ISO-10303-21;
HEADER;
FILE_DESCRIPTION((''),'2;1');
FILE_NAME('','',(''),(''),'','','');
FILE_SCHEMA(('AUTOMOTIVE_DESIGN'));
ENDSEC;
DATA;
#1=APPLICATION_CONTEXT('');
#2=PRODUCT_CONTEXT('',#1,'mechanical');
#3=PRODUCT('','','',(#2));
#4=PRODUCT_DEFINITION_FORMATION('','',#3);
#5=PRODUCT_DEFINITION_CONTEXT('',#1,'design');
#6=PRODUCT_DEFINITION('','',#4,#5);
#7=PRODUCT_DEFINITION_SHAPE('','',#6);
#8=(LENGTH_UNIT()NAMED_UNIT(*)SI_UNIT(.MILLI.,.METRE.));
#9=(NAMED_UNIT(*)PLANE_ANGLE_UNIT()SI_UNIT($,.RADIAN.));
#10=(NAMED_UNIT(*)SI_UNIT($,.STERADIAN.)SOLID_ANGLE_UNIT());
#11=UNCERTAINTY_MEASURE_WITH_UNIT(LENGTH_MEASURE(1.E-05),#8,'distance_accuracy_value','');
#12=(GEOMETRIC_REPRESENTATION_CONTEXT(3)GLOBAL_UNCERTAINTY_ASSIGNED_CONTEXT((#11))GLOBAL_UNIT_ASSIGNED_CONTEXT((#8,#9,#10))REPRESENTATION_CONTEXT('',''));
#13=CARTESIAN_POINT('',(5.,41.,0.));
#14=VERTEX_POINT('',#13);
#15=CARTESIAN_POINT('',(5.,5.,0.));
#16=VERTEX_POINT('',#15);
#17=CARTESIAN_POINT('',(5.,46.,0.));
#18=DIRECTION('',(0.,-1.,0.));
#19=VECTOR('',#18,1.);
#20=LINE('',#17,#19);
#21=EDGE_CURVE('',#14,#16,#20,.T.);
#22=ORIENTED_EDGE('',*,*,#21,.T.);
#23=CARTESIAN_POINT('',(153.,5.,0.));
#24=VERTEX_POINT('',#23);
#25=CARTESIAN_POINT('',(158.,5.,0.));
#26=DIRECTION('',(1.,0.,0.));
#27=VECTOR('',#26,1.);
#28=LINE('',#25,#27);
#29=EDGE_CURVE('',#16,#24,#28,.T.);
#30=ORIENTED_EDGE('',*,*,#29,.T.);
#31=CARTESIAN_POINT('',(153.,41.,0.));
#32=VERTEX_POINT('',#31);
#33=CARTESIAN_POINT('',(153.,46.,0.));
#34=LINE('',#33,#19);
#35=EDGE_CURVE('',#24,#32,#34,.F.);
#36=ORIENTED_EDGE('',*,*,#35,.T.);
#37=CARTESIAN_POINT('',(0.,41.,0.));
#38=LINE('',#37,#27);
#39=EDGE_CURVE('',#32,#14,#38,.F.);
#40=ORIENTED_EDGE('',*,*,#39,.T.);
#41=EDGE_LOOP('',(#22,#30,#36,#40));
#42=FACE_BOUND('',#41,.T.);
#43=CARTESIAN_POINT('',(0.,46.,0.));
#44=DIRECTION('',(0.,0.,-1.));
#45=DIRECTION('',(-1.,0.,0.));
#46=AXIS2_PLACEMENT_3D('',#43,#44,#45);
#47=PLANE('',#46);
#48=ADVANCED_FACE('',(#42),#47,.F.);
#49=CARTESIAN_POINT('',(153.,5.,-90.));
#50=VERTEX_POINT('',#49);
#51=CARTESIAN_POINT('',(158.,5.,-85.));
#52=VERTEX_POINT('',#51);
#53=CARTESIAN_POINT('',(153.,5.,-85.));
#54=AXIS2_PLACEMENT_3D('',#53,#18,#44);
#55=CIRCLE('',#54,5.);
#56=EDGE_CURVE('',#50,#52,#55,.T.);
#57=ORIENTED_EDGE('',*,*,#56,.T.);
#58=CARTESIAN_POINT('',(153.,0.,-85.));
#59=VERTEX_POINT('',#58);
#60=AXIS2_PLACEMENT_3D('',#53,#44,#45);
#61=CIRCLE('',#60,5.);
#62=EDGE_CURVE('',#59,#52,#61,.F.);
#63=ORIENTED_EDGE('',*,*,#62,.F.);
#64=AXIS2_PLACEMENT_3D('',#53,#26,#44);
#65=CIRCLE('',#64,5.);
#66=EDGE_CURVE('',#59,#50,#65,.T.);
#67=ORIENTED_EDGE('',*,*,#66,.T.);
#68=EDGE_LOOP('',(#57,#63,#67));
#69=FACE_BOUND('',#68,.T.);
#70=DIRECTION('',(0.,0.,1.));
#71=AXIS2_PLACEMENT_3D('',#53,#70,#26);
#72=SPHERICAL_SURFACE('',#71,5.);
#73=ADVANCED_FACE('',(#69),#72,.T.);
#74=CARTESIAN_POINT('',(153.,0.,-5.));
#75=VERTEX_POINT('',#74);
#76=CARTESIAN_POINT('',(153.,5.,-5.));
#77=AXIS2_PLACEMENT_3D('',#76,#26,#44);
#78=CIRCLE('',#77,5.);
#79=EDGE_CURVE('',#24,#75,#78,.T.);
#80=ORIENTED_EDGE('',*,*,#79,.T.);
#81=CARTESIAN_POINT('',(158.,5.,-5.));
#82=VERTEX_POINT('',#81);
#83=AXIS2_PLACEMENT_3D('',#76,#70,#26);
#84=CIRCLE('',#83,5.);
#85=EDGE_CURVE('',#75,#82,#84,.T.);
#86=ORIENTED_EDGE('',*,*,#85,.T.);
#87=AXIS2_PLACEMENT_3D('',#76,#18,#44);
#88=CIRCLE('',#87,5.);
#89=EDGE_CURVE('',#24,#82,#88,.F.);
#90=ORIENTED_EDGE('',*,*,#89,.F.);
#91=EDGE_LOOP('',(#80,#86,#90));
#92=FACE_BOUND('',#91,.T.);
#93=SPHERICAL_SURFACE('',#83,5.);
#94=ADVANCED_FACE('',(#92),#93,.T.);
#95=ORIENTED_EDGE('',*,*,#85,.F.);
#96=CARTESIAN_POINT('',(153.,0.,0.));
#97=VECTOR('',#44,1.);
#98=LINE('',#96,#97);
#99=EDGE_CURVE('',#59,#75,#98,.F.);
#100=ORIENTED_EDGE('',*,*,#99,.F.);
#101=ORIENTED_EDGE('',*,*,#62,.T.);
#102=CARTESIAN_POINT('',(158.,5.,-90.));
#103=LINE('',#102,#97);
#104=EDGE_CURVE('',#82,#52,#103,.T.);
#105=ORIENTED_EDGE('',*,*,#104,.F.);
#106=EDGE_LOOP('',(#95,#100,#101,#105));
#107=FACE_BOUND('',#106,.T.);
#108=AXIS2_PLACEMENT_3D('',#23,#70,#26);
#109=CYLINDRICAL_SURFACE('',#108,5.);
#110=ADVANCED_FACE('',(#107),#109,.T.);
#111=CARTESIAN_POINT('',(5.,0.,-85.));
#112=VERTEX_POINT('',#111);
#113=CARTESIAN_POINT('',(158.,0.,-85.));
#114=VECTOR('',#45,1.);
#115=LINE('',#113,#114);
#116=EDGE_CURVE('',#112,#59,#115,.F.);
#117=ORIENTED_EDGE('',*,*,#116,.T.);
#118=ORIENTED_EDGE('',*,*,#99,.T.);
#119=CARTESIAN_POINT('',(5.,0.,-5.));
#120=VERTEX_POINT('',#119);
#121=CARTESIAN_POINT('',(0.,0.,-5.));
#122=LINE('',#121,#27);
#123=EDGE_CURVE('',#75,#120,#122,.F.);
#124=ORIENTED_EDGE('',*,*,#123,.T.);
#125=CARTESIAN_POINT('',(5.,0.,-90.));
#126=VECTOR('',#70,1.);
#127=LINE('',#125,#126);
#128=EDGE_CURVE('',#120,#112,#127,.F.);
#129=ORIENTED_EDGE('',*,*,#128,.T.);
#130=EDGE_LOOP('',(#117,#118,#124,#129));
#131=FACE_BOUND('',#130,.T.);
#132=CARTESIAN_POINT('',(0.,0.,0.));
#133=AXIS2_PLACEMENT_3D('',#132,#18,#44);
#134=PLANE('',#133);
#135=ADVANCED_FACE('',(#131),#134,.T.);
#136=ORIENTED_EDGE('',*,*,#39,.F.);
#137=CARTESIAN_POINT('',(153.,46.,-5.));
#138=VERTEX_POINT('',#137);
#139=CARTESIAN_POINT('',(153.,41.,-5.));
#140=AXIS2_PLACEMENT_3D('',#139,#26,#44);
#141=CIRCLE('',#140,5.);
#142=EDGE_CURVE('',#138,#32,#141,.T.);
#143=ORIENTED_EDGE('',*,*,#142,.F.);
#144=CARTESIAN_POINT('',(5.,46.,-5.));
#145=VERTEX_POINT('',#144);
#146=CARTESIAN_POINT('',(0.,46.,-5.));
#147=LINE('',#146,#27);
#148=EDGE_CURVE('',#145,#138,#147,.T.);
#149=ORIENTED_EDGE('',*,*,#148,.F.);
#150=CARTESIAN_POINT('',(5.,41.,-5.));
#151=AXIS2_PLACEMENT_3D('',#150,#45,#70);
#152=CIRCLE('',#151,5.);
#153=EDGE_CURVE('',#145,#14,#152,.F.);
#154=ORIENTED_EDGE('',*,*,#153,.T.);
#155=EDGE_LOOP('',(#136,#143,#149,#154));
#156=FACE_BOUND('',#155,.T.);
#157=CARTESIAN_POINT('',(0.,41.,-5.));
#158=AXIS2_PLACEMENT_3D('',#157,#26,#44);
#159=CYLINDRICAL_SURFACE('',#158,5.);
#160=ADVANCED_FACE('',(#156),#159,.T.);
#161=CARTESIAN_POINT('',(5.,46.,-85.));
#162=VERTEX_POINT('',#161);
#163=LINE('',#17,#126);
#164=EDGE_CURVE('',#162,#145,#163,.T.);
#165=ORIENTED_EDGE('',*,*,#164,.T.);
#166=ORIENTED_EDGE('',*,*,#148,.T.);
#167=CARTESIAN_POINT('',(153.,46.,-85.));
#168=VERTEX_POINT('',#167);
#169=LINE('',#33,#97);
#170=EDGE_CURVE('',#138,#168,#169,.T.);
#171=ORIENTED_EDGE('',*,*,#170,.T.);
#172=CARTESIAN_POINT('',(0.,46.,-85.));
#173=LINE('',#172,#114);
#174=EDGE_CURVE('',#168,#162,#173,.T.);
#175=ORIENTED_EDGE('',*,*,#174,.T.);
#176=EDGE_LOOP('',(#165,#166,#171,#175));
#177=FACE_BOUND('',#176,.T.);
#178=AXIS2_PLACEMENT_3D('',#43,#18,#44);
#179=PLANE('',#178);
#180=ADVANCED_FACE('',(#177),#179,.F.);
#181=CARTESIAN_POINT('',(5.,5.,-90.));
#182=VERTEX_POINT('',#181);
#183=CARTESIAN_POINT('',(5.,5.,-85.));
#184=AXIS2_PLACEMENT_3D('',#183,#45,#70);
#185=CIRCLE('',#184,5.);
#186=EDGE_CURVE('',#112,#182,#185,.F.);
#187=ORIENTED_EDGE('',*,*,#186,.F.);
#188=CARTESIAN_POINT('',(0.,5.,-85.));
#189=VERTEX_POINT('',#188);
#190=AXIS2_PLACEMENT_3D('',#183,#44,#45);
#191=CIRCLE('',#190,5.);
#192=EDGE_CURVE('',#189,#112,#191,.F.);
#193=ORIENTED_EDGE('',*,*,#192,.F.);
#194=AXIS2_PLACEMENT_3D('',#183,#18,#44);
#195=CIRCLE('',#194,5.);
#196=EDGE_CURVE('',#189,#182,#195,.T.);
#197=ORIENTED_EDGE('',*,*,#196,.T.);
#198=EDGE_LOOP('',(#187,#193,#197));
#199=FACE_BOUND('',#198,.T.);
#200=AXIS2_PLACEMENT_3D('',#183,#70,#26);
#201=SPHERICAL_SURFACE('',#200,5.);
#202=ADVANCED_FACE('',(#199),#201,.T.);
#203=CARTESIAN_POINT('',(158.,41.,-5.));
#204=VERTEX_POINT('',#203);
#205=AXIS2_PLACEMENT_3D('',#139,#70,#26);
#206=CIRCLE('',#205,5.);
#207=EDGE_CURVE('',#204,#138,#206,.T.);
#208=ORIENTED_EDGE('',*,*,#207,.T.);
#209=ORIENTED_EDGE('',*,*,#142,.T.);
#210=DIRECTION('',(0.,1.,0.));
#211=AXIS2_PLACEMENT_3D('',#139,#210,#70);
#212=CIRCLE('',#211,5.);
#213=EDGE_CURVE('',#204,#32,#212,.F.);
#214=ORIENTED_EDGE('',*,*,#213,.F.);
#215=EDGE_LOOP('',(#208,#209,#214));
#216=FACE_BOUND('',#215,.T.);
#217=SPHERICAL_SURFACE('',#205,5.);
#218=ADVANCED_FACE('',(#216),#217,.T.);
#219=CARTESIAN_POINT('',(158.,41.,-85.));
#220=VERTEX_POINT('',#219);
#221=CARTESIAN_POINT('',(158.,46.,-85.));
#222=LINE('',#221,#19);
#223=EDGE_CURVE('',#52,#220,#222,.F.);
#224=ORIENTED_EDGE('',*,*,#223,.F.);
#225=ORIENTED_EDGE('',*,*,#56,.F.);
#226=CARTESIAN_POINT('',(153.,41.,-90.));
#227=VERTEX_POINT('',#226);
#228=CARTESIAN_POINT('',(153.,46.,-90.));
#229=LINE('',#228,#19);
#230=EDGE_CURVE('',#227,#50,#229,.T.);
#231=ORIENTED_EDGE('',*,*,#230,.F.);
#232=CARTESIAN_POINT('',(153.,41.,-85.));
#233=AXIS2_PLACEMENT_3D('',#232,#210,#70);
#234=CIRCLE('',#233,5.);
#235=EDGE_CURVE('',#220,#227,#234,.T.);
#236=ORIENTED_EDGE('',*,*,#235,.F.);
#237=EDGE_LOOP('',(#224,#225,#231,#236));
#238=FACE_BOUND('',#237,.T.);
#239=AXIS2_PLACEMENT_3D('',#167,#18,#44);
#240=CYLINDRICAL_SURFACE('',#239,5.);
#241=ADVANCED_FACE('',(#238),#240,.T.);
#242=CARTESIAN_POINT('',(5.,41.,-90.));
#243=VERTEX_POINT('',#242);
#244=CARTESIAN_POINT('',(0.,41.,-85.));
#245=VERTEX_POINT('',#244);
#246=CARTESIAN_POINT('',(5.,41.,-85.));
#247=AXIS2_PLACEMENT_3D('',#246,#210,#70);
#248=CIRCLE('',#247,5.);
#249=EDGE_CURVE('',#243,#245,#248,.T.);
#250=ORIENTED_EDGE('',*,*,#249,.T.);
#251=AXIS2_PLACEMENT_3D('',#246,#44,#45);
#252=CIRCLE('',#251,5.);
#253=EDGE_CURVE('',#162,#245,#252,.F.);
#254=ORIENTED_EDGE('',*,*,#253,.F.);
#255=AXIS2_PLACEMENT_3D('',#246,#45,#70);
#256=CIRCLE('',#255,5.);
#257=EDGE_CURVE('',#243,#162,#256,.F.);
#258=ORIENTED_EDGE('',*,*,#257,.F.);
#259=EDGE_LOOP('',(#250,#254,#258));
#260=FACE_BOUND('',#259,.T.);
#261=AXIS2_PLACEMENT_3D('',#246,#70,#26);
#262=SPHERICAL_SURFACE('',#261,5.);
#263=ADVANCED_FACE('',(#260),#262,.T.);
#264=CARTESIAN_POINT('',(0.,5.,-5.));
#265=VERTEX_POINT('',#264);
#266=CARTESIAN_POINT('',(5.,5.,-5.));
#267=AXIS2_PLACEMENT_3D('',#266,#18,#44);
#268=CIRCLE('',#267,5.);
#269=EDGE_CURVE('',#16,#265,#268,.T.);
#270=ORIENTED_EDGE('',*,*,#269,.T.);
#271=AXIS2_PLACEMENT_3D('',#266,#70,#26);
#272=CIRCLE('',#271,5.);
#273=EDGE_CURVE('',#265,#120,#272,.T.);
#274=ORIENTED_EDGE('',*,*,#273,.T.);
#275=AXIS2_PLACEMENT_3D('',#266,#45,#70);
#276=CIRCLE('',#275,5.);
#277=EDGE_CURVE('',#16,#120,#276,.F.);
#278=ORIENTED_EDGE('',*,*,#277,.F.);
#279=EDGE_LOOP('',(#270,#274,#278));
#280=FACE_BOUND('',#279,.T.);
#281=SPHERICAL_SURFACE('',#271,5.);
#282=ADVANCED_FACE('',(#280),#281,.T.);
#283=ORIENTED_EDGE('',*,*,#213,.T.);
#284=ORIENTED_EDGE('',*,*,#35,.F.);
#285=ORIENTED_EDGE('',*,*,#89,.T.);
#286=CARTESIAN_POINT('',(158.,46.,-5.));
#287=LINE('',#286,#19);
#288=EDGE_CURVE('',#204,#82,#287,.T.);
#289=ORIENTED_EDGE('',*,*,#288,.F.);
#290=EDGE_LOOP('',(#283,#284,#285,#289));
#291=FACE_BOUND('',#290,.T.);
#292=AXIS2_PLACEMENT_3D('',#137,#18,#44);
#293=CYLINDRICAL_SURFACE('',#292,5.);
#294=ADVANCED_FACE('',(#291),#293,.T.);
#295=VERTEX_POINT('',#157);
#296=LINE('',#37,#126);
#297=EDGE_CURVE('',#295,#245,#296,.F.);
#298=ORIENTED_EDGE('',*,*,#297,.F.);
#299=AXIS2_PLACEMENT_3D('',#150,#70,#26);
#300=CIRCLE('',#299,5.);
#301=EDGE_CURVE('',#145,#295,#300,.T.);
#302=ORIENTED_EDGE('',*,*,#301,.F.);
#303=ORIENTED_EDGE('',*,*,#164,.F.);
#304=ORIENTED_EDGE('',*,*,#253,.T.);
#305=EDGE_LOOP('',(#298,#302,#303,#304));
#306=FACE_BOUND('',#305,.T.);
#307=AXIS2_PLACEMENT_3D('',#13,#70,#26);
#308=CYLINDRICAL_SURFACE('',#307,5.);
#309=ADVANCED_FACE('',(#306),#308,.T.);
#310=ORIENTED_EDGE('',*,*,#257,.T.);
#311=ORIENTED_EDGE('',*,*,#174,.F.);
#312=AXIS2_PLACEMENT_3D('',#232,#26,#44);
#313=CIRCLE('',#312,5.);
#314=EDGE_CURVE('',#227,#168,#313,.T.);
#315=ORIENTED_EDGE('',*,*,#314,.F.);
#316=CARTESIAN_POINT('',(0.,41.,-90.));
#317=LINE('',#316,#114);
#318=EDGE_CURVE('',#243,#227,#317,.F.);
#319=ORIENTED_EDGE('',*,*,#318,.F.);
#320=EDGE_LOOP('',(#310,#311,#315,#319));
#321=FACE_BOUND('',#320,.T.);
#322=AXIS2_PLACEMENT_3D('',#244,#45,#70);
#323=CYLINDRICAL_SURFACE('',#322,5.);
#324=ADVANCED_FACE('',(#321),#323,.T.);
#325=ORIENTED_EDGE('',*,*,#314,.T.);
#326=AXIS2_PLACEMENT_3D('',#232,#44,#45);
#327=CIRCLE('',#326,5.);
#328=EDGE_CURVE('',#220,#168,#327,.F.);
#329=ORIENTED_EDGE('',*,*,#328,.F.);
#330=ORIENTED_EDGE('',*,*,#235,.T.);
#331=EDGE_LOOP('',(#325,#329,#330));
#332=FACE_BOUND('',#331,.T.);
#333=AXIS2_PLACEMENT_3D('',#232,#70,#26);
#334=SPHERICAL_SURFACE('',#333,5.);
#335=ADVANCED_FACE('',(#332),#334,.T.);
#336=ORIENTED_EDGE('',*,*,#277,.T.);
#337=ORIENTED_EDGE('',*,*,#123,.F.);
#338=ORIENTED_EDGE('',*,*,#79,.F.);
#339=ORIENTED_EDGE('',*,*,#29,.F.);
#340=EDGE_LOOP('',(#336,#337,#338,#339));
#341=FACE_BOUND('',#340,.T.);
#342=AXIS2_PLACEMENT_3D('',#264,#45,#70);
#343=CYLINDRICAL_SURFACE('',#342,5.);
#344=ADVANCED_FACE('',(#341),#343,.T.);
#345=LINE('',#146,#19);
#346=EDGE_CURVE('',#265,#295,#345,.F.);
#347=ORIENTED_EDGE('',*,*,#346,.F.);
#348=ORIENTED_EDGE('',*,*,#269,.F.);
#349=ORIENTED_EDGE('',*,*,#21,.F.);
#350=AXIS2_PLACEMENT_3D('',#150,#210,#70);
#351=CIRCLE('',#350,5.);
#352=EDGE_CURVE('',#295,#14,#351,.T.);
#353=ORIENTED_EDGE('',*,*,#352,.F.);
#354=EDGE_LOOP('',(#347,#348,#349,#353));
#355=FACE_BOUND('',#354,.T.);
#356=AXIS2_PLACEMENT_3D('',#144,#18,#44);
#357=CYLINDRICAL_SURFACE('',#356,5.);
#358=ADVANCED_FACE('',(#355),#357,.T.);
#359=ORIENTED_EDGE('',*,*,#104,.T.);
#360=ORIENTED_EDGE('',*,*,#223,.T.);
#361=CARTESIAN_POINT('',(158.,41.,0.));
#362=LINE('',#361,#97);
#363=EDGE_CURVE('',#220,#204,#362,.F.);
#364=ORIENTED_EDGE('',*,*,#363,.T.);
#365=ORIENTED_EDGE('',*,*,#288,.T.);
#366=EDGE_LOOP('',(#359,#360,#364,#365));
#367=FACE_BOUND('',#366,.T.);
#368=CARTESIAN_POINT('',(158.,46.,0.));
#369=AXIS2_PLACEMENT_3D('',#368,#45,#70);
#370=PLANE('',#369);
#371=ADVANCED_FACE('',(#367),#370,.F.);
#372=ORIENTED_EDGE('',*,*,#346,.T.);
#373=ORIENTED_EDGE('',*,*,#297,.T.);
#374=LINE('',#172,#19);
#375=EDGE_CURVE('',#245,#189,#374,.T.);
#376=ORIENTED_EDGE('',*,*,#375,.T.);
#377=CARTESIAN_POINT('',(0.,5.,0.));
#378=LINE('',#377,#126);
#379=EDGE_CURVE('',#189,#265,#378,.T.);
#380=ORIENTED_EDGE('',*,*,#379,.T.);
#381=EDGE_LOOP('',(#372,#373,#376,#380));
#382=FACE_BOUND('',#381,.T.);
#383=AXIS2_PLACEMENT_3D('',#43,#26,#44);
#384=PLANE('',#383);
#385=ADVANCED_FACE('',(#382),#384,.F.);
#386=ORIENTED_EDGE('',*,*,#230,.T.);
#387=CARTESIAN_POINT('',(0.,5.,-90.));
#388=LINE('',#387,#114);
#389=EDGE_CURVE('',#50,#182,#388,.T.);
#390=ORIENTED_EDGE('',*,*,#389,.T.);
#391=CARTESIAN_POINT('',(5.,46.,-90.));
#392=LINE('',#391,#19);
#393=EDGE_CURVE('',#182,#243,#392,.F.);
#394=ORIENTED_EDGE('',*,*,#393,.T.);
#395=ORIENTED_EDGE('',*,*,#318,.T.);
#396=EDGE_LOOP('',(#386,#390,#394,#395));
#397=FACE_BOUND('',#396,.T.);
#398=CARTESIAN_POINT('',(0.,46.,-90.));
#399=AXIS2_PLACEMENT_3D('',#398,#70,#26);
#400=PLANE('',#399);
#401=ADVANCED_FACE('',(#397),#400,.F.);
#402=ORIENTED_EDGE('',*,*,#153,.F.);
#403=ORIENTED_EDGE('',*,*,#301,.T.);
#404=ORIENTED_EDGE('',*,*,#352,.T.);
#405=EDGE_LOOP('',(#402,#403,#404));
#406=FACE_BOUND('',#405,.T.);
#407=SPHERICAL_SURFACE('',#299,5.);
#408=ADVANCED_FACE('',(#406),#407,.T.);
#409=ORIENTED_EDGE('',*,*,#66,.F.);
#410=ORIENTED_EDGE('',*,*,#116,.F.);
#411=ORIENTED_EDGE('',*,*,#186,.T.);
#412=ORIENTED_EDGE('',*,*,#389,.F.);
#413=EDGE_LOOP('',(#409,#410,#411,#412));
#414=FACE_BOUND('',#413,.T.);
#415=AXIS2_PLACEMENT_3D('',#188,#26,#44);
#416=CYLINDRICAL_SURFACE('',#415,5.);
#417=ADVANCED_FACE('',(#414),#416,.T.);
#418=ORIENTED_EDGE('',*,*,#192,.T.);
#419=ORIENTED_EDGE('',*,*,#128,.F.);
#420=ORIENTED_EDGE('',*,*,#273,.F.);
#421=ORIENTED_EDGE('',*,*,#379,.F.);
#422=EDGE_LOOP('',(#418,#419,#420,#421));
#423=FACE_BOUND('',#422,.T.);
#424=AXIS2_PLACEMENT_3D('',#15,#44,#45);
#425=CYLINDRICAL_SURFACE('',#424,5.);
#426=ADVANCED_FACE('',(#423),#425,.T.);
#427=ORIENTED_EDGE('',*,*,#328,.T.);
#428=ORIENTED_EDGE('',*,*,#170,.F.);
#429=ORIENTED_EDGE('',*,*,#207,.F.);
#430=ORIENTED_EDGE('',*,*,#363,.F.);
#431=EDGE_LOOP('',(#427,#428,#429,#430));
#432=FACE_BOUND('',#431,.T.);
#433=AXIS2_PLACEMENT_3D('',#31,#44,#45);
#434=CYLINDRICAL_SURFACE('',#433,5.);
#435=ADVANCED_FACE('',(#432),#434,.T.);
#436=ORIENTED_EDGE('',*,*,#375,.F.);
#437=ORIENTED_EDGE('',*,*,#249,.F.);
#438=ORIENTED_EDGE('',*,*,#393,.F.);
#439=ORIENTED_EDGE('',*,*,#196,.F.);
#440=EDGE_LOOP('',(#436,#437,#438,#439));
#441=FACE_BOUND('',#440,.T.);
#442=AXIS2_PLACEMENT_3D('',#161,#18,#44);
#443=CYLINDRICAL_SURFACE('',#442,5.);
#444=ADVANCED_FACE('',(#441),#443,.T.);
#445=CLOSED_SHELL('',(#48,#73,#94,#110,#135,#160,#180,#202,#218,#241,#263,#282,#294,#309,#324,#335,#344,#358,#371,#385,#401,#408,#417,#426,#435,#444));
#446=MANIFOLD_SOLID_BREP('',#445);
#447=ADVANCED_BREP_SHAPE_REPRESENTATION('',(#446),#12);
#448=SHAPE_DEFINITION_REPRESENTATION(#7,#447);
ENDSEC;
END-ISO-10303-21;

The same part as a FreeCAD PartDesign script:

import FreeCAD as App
import Part
import Sketcher

V = App.Vector
Q = App.Units.Quantity

doc = App.newDocument("Part")
body = doc.addObject("PartDesign::Body", "Body")

# Sketch on XZ plane
sketch1 = doc.addObject("Sketcher::SketchObject", "Sketch")
body.addObject(sketch1)
sketch1.AttachmentSupport = (doc.XZ_Plane, [""])
sketch1.MapMode = "FlatFace"
sketch1.addGeometry([
    Part.LineSegment(V(0, -90, 0), V(0, 0, 0)),
    Part.LineSegment(V(0, 0, 0), V(158, 0, 0)),
    Part.LineSegment(V(158, 0, 0), V(158, -90, 0)),
    Part.LineSegment(V(158, -90, 0), V(0, -90, 0)),
], False)
sketch1.addConstraint([
    Sketcher.Constraint("Coincident", 0, 2, 1, 1),
    Sketcher.Constraint("Coincident", 1, 2, 2, 1),
    Sketcher.Constraint("Coincident", 2, 2, 3, 1),
    Sketcher.Constraint("Coincident", 3, 2, 0, 1),
    Sketcher.Constraint("Vertical", 0),
    Sketcher.Constraint("Horizontal", 1),
    Sketcher.Constraint("Vertical", 2),
    Sketcher.Constraint("Horizontal", 3),
    Sketcher.Constraint("Coincident", 0, 2, -1, 1),
    Sketcher.Constraint("DistanceX", 1, 1, 1, 2, Q("158 mm")),
    Sketcher.Constraint("DistanceY", 0, 1, 0, 2, Q("90 mm")),
])
pad1 = doc.addObject("PartDesign::Pad", "Pad")
body.addObject(pad1)
pad1.Profile = sketch1
pad1.Length = 46
pad1.Reversed = True
doc.recompute()

fillet = doc.addObject("PartDesign::Fillet", "Fillet")
body.addObject(fillet)
fillet.Base = (pad1, ["Edge1"])
fillet.UseAllEdges = True
fillet.Radius = 5

doc.recompute()
